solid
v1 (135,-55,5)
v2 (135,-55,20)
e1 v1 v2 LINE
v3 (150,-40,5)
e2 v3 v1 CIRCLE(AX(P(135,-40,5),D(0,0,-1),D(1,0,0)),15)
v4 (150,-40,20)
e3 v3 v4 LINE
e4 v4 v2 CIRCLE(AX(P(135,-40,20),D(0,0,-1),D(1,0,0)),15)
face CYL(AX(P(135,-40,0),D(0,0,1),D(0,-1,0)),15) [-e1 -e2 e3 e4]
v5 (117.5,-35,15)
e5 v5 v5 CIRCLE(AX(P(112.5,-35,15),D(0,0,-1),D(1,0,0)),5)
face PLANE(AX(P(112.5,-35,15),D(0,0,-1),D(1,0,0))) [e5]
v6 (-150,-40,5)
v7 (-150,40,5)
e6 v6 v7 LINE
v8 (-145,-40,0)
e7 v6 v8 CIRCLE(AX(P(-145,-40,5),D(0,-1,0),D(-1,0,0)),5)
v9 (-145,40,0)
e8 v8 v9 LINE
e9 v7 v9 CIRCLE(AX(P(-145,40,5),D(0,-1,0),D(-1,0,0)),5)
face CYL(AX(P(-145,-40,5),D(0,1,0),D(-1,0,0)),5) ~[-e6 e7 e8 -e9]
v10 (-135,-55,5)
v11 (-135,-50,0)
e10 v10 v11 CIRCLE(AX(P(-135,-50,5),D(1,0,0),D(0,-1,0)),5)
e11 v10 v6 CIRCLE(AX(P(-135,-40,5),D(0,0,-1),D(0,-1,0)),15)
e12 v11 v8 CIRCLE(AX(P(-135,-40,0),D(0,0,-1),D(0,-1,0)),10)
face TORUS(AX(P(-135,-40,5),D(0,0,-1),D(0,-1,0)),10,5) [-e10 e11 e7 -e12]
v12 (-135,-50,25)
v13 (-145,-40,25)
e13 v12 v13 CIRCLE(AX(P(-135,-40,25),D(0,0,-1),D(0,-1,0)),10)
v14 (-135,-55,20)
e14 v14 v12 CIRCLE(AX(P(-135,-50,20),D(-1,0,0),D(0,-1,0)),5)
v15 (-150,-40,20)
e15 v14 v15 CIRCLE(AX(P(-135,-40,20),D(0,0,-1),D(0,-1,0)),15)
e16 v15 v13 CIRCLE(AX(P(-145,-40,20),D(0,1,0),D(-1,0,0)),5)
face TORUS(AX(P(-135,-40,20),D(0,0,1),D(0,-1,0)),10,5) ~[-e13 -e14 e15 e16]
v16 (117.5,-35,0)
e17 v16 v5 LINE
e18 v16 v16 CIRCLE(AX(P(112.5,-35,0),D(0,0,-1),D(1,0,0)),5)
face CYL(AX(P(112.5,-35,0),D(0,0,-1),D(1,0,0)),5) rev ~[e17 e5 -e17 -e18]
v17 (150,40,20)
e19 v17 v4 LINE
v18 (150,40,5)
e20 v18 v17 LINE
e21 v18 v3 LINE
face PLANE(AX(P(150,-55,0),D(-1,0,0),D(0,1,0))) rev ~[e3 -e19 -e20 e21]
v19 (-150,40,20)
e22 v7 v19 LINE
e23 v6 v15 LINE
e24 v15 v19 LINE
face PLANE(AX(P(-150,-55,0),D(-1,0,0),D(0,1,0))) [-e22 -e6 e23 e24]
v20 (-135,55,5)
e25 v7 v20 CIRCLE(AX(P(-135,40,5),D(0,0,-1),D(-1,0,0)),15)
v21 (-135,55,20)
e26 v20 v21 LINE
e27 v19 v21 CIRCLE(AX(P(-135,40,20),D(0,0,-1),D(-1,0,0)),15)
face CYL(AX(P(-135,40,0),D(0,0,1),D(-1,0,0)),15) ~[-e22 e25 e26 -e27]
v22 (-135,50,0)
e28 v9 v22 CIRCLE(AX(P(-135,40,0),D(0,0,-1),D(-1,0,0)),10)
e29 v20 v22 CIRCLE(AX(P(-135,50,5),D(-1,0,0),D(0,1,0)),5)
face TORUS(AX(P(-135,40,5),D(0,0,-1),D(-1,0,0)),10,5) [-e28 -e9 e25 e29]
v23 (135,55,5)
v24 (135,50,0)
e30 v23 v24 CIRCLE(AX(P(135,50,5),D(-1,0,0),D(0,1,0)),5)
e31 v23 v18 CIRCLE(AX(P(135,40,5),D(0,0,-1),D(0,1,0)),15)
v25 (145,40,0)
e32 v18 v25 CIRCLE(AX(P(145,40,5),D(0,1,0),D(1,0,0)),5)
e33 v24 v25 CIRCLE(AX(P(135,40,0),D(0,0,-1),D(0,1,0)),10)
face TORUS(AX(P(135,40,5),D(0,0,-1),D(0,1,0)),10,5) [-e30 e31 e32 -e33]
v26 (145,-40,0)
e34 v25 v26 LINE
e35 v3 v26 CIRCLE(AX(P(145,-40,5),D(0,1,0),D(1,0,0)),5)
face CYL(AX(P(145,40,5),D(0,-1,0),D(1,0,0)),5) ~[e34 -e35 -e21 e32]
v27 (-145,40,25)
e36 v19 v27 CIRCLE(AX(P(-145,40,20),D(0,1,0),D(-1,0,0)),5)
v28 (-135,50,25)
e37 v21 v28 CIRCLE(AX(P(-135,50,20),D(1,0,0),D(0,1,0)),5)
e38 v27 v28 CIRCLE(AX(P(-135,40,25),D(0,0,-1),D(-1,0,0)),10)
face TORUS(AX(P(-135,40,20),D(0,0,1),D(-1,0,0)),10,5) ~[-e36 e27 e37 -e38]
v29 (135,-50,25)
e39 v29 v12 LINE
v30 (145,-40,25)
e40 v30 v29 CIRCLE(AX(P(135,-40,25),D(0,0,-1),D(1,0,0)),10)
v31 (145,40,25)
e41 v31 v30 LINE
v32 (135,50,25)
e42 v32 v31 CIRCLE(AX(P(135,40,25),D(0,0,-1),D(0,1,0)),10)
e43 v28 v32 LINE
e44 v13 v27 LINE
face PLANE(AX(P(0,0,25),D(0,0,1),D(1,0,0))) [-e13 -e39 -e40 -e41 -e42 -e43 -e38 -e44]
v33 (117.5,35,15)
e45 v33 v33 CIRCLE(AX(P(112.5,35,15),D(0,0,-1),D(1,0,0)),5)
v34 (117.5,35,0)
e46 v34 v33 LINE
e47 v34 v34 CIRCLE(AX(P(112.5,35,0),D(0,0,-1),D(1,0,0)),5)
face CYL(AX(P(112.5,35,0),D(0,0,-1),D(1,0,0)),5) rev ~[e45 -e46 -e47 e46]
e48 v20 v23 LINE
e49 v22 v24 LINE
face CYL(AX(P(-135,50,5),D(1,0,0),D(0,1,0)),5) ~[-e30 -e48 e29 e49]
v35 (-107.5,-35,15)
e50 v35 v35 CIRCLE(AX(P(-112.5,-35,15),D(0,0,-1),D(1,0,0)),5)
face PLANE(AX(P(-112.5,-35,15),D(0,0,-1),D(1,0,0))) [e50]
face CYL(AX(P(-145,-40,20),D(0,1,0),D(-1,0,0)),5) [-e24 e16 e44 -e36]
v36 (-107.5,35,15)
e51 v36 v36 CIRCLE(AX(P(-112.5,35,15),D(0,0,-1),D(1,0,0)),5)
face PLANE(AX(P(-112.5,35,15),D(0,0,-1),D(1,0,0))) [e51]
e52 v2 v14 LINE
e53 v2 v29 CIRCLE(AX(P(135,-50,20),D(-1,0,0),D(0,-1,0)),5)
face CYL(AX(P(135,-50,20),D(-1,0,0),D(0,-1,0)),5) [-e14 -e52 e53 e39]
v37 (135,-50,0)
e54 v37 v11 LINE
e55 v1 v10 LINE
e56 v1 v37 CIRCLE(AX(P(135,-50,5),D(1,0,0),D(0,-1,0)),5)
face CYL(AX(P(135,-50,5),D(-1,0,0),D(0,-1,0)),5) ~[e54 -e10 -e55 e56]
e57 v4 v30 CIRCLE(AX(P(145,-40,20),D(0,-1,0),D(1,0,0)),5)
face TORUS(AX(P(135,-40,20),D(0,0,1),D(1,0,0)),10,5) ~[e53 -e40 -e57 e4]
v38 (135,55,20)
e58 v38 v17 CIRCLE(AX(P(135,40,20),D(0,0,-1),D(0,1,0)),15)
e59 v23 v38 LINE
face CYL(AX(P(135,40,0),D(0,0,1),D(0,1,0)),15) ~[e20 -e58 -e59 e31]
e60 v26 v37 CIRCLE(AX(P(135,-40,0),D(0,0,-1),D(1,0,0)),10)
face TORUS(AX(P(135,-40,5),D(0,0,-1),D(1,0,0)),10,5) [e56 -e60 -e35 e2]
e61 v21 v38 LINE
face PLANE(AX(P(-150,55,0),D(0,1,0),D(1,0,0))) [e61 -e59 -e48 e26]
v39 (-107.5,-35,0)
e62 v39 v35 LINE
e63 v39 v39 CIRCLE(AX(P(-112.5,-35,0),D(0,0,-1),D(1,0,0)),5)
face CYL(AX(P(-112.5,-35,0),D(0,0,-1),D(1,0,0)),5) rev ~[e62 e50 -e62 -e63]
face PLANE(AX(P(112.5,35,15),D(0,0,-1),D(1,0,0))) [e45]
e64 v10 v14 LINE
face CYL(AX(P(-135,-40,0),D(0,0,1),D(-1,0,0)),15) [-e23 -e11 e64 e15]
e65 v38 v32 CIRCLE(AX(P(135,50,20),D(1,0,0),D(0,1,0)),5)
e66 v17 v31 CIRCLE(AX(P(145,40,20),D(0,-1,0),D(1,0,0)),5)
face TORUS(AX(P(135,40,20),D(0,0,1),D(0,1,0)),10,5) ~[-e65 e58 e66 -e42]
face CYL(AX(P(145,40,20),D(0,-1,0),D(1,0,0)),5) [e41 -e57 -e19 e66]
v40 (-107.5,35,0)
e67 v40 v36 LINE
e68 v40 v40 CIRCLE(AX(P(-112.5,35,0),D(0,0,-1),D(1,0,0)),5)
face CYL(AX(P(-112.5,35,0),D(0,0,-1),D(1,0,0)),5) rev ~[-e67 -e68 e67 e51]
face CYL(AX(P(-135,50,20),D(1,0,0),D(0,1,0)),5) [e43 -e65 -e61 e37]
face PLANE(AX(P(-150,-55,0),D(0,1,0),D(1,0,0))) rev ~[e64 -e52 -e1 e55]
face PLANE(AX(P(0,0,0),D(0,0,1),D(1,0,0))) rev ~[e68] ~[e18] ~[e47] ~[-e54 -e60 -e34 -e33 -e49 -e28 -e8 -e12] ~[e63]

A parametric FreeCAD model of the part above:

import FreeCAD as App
import Part
import Sketcher

V = App.Vector
Q = App.Units.Quantity


def edges_at(feature, points):
    """Names of the edges that pass closest to the given points."""
    edges = feature.Shape.Edges
    near = lambda p: min(range(len(edges)), key=lambda i: edges[i].distToShape(Part.Vertex(*p))[0])
    return sorted({f"Edge{near(p) + 1}" for p in points})

doc = App.newDocument("Part")
params = doc.addObject("Spreadsheet::Sheet", "Params")
for row, (alias, value) in enumerate([
    ("sketch1_width", "300 mm"),
    ("sketch1_height", "110 mm"),
    ("pad1_length", "25 mm"),
    ("sketch2_diameter", "10 mm"),
    ("pocket1_length", "15 mm"),
    ("fillet_radius", "15 mm"),
    ("fillet2_radius", "5 mm"),
], start=1):
    params.set(f"A{row}", alias)
    params.set(f"B{row}", "=" + value)
    params.setAlias(f"B{row}", alias)

body = doc.addObject("PartDesign::Body", "Body")

sketch1 = body.newObject("Sketcher::SketchObject", "Sketch")
sketch1.AttachmentSupport = (doc.getObject("XY_Plane"), [""])
sketch1.MapMode = "FlatFace"
sketch1.addGeometry(Part.LineSegment(V(-150, 55, 0), V(-150, -55, 0)), False)
sketch1.addGeometry(Part.LineSegment(V(-150, -55, 0), V(150, -55, 0)), False)
sketch1.addGeometry(Part.LineSegment(V(150, -55, 0), V(150, 55, 0)), False)
sketch1.addGeometry(Part.LineSegment(V(150, 55, 0), V(-150, 55, 0)), False)
sketch1.addConstraint(Sketcher.Constraint("Coincident", 0, 2, 1, 1))
sketch1.addConstraint(Sketcher.Constraint("Coincident", 1, 2, 2, 1))
sketch1.addConstraint(Sketcher.Constraint("Coincident", 2, 2, 3, 1))
sketch1.addConstraint(Sketcher.Constraint("Coincident", 3, 2, 0, 1))
sketch1.addConstraint(Sketcher.Constraint("Vertical", 0))
sketch1.addConstraint(Sketcher.Constraint("Horizontal", 1))
sketch1.addConstraint(Sketcher.Constraint("Vertical", 2))
sketch1.addConstraint(Sketcher.Constraint("Horizontal", 3))
sketch1.addConstraint(Sketcher.Constraint("Symmetric", 0, 2, 2, 2, -1, 1))
sketch1.addConstraint(Sketcher.Constraint("DistanceX", 1, 1, 1, 2, Q("300 mm")))
sketch1.addConstraint(Sketcher.Constraint("DistanceY", 0, 2, 0, 1, Q("110 mm")))
sketch1.setExpression("Constraints[9]", "Params.sketch1_width")
sketch1.setExpression("Constraints[10]", "Params.sketch1_height")
pad1 = body.newObject("PartDesign::Pad", "Pad")
pad1.Profile = sketch1
pad1.setExpression("Length", "Params.pad1_length")

sketch2 = body.newObject("Sketcher::SketchObject", "Sketch001")
sketch2.AttachmentSupport = (doc.getObject("XY_Plane"), [""])
sketch2.MapMode = "FlatFace"
sketch2.addGeometry(Part.Circle(V(-112, -35, 0), V(0, 0, 1), 5), False)
sketch2.addGeometry(Part.Circle(V(112, -35, 0), V(0, 0, 1), 5), False)
sketch2.addGeometry(Part.Circle(V(112, 35, 0), V(0, 0, 1), 5), False)
sketch2.addGeometry(Part.Circle(V(-112, 35, 0), V(0, 0, 1), 5), False)
sketch2.addConstraint(Sketcher.Constraint("Equal", 0, 1))
sketch2.addConstraint(Sketcher.Constraint("Equal", 1, 2))
sketch2.addConstraint(Sketcher.Constraint("Equal", 2, 3))
sketch2.addConstraint(Sketcher.Constraint("Symmetric", 0, 3, 2, 3, -1, 1))
sketch2.addConstraint(Sketcher.Constraint("Symmetric", 1, 3, 3, 3, -1, 1))
sketch2.addConstraint(Sketcher.Constraint("Symmetric", 0, 3, 1, 3, -2))
sketch2.addConstraint(Sketcher.Constraint("Diameter", 0, Q("10 mm")))
sketch2.addConstraint(Sketcher.Constraint("DistanceY", 0, 3, -1, 1, Q("35 mm")))
sketch2.addConstraint(Sketcher.Constraint("DistanceX", 0, 3, 1, 3, Q("225 mm")))
sketch2.setExpression("Constraints[6]", "Params.sketch2_diameter")
pocket1 = body.newObject("PartDesign::Pocket", "Pocket")
pocket1.Profile = sketch2
pocket1.setExpression("Length", "Params.pocket1_length")
pocket1.Reversed = True
doc.recompute()

fillet = body.newObject("PartDesign::Fillet", "Fillet")
fillet.Base = (pocket1, edges_at(pocket1, [
    (-150, 55, 12.5),
    (-150, -55, 12.5),
    (150, -55, 12.5),
    (150, 55, 12.5),
]))
fillet.setExpression("Radius", "Params.fillet_radius")
doc.recompute()

fillet2 = body.newObject("PartDesign::Fillet", "Fillet001")
fillet2.Base = (fillet, edges_at(fillet, [(-150, 0, 25), (-150, 0, 0)]))
fillet2.setExpression("Radius", "Params.fillet2_radius")

doc.recompute()
